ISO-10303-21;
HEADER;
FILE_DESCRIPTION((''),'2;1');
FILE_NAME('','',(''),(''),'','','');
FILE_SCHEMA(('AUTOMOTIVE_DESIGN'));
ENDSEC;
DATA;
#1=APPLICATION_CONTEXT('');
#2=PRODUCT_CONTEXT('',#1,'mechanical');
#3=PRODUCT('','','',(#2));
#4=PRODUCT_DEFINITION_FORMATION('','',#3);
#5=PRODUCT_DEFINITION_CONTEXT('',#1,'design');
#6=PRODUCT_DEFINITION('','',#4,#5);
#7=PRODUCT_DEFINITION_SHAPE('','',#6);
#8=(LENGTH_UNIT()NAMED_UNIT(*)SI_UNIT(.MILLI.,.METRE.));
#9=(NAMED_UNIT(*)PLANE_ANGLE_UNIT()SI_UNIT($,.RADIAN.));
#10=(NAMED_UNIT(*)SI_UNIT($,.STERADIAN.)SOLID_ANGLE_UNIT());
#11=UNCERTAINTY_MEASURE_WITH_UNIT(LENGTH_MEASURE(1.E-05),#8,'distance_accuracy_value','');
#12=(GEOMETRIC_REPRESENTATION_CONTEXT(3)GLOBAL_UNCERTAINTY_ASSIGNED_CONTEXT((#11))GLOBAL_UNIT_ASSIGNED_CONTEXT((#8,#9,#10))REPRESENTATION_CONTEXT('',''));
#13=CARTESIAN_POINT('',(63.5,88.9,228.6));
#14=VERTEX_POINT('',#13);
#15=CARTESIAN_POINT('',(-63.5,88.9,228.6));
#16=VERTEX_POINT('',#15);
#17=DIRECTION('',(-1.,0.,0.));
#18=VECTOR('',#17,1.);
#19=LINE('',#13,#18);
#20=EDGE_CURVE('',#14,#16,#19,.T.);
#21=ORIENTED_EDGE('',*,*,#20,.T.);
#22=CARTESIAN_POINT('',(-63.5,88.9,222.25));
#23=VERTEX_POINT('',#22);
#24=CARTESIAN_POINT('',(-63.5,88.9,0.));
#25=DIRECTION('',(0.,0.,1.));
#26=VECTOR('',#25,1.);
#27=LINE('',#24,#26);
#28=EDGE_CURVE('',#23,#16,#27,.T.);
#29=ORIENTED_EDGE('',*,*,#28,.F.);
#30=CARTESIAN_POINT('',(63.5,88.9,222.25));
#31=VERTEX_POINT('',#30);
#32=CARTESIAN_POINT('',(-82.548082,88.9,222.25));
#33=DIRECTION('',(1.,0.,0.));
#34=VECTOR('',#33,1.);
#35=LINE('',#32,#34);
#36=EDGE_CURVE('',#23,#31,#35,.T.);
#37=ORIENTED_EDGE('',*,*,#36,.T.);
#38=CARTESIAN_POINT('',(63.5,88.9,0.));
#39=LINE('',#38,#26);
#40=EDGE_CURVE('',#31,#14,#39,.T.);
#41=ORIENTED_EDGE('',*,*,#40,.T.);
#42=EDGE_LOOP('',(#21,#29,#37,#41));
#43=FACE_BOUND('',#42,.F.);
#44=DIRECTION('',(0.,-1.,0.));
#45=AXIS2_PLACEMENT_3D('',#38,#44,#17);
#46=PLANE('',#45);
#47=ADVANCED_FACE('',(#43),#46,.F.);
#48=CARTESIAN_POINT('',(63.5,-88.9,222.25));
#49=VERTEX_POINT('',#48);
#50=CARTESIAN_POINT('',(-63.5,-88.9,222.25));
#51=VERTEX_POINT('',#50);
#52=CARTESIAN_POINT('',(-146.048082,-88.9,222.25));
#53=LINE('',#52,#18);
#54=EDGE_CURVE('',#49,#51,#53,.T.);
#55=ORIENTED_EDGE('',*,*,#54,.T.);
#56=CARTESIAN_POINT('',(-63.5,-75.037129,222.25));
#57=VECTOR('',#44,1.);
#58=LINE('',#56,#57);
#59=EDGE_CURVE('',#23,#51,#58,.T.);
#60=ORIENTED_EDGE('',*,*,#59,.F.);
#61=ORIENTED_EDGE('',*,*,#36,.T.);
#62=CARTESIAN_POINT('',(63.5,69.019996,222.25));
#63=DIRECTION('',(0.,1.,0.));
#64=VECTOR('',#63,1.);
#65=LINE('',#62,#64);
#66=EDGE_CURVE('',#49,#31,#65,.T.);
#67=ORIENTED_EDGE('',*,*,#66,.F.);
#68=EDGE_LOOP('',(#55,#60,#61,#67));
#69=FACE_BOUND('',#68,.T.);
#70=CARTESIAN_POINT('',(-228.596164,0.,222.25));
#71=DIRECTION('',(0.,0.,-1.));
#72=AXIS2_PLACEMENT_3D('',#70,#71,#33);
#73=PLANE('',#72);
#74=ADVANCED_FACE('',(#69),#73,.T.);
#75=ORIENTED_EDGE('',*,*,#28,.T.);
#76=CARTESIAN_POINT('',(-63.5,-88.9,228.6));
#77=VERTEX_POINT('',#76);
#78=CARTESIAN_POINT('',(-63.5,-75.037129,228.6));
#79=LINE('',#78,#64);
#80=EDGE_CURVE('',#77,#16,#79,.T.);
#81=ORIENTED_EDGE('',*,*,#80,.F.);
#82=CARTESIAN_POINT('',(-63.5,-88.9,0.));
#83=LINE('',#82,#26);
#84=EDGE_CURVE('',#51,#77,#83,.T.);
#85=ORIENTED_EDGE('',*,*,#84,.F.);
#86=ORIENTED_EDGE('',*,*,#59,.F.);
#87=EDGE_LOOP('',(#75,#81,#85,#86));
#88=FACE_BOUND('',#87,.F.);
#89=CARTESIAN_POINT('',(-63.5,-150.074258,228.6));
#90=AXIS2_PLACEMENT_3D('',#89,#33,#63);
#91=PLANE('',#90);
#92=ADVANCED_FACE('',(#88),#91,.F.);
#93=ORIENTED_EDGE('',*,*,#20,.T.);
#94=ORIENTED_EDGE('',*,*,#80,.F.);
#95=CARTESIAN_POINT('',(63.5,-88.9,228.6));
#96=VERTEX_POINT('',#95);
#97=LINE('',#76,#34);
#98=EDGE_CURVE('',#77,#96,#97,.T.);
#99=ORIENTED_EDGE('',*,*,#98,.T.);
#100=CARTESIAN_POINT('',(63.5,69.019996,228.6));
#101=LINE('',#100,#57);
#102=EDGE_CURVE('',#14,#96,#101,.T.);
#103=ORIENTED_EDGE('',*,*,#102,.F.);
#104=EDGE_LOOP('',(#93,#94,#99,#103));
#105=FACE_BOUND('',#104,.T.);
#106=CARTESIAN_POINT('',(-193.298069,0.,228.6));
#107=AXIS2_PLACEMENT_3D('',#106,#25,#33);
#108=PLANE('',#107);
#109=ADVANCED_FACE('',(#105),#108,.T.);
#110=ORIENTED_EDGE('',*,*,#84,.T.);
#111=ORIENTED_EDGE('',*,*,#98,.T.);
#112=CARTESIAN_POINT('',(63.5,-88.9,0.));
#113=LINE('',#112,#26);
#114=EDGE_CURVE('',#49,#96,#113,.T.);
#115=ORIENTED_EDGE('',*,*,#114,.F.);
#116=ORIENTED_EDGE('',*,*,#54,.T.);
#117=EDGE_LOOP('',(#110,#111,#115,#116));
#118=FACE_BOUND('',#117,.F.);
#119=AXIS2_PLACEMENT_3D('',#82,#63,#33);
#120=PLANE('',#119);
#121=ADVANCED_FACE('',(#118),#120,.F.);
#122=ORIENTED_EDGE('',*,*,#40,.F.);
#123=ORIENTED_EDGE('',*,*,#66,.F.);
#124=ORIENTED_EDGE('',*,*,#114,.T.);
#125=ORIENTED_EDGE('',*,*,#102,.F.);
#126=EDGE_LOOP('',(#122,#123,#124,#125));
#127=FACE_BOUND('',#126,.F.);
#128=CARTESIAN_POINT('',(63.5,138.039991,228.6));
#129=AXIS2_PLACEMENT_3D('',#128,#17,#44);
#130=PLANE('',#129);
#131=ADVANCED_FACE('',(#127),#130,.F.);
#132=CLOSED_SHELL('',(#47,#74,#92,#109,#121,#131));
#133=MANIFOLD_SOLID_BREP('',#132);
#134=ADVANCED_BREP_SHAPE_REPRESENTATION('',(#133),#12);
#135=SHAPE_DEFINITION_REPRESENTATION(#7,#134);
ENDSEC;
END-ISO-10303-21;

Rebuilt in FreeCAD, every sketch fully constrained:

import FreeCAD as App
import Part
import Sketcher
from FreeCAD import Vector
Q = App.Units.Quantity

doc = App.newDocument("Part")
params = doc.addObject("Spreadsheet::Sheet", "Params")
for row, (alias, value) in enumerate([
    ("sketch1_width", "5 in"),
    ("sketch1_length", "1.414 in"),
    ("pad1_length", "9 in"),
    ("sketch2_diameter", "0.5 in"),
    ("sketch2_length", "0.707 in"),
    ("pad2_length", "3 in"),
    ("sketch3_diameter", "0.5 in"),
    ("pad3_length", "7 in"),
    ("sketch4_diameter", "0.5 in"),
    ("pad4_length", "8 in"),
    ("sketch5_height", "4 in"),
    ("sketch5_width", "0.251 in"),
    ("groove_angle", "360 deg"),
    ("sketch6_height", "4 in"),
    ("sketch6_width", "0.251 in"),
    ("groove2_angle", "360 deg"),
    ("sketch7_height", "4 in"),
    ("sketch7_width", "0.251 in"),
    ("groove3_angle", "360 deg"),
    ("sketch8_height", "4 in"),
    ("sketch8_width", "0.251 in"),
    ("groove4_angle", "360 deg"),
    ("sketch9_height", "4 in"),
    ("sketch9_width", "0.252 in"),
    ("groove5_angle", "360 deg"),
    ("sketch10_height", "5 in"),
    ("sketch10_width", "0.252 in"),
    ("groove6_angle", "360 deg"),
    ("sketch11_height", "9.25 in"),
    ("pocket1_length", "20 in"),
    ("pocket2_length", "20 in"),
    ("pocket3_length", "20 in"),
], start=1):
    params.set(f"A{row}", alias)
    params.set(f"B{row}", "=" + value)
    params.setAlias(f"B{row}", alias)

body = doc.addObject("PartDesign::Body", "Body")

# Sketch on XY plane
sketch1 = body.newObject("Sketcher::SketchObject", "Sketch")
sketch1.AttachmentSupport = (doc.getObject("XY_Plane"), [""])
sketch1.MapMode = "FlatFace"
sketch1.addGeometry(Part.LineSegment(Vector(-177, 12, 0), Vector(-190, 25, 0)), False)
sketch1.addGeometry(Part.LineSegment(Vector(-190, 25, 0), Vector(-216, 0, 0)), False)
sketch1.addGeometry(Part.LineSegment(Vector(-216, 0, 0), Vector(-190, -25, 0)), False)
sketch1.addGeometry(Part.LineSegment(Vector(-190, -25, 0), Vector(-177, -12, 0)), False)
sketch1.addGeometry(Part.LineSegment(Vector(-177, -12, 0), Vector(-102, -77, 0)), False)
sketch1.addGeometry(Part.LineSegment(Vector(-102, -77, 0), Vector(-114, -89, 0)), False)
sketch1.addGeometry(Part.LineSegment(Vector(-114, -89, 0), Vector(-89, -114, 0)), False)
sketch1.addGeometry(Part.LineSegment(Vector(-89, -114, 0), Vector(-64, -89, 0)), False)
sketch1.addGeometry(Part.LineSegment(Vector(-64, -89, 0), Vector(64, -89, 0)), False)
sketch1.addGeometry(Part.LineSegment(Vector(64, -89, 0), Vector(89, -114, 0)), False)
sketch1.addGeometry(Part.LineSegment(Vector(89, -114, 0), Vector(114, -89, 0)), False)
sketch1.addGeometry(Part.LineSegment(Vector(114, -89, 0), Vector(102, -77, 0)), False)
sketch1.addGeometry(Part.LineSegment(Vector(102, -77, 0), Vector(177, -12, 0)), False)
sketch1.addGeometry(Part.LineSegment(Vector(177, -12, 0), Vector(190, -25, 0)), False)
sketch1.addGeometry(Part.LineSegment(Vector(190, -25, 0), Vector(216, 0, 0)), False)
sketch1.addGeometry(Part.LineSegment(Vector(216, 0, 0), Vector(190, 25, 0)), False)
sketch1.addGeometry(Part.LineSegment(Vector(190, 25, 0), Vector(177, 12, 0)), False)
sketch1.addGeometry(Part.LineSegment(Vector(177, 12, 0), Vector(102, 77, 0)), False)
sketch1.addGeometry(Part.LineSegment(Vector(102, 77, 0), Vector(114, 89, 0)), False)
sketch1.addGeometry(Part.LineSegment(Vector(114, 89, 0), Vector(89, 114, 0)), False)
sketch1.addGeometry(Part.LineSegment(Vector(89, 114, 0), Vector(64, 89, 0)), False)
sketch1.addGeometry(Part.LineSegment(Vector(64, 89, 0), Vector(-64, 89, 0)), False)
sketch1.addGeometry(Part.LineSegment(Vector(-64, 89, 0), Vector(-89, 114, 0)), False)
sketch1.addGeometry(Part.LineSegment(Vector(-89, 114, 0), Vector(-114, 89, 0)), False)
sketch1.addGeometry(Part.LineSegment(Vector(-114, 89, 0), Vector(-102, 77, 0)), False)
sketch1.addGeometry(Part.LineSegment(Vector(-102, 77, 0), Vector(-177, 12, 0)), False)
sketch1.addConstraint(Sketcher.Constraint("Coincident", 0, 2, 1, 1))
sketch1.addConstraint(Sketcher.Constraint("Coincident", 1, 2, 2, 1))
sketch1.addConstraint(Sketcher.Constraint("Coincident", 2, 2, 3, 1))
sketch1.addConstraint(Sketcher.Constraint("Coincident", 3, 2, 4, 1))
sketch1.addConstraint(Sketcher.Constraint("Coincident", 4, 2, 5, 1))
sketch1.addConstraint(Sketcher.Constraint("Coincident", 5, 2, 6, 1))
sketch1.addConstraint(Sketcher.Constraint("Coincident", 6, 2, 7, 1))
sketch1.addConstraint(Sketcher.Constraint("Coincident", 7, 2, 8, 1))
sketch1.addConstraint(Sketcher.Constraint("Coincident", 8, 2, 9, 1))
sketch1.addConstraint(Sketcher.Constraint("Coincident", 9, 2, 10, 1))
sketch1.addConstraint(Sketcher.Constraint("Coincident", 10, 2, 11, 1))
sketch1.addConstraint(Sketcher.Constraint("Coincident", 11, 2, 12, 1))
sketch1.addConstraint(Sketcher.Constraint("Coincident", 12, 2, 13, 1))
sketch1.addConstraint(Sketcher.Constraint("Coincident", 13, 2, 14, 1))
sketch1.addConstraint(Sketcher.Constraint("Coincident", 14, 2, 15, 1))
sketch1.addConstraint(Sketcher.Constraint("Coincident", 15, 2, 16, 1))
sketch1.addConstraint(Sketcher.Constraint("Coincident", 16, 2, 17, 1))
sketch1.addConstraint(Sketcher.Constraint("Coincident", 17, 2, 18, 1))
sketch1.addConstraint(Sketcher.Constraint("Coincident", 18, 2, 19, 1))
sketch1.addConstraint(Sketcher.Constraint("Coincident", 19, 2, 20, 1))
sketch1.addConstraint(Sketcher.Constraint("Coincident", 20, 2, 21, 1))
sketch1.addConstraint(Sketcher.Constraint("Coincident", 21, 2, 22, 1))
sketch1.addConstraint(Sketcher.Constraint("Coincident", 22, 2, 23, 1))
sketch1.addConstraint(Sketcher.Constraint("Coincident", 23, 2, 24, 1))
sketch1.addConstraint(Sketcher.Constraint("Coincident", 24, 2, 25, 1))
sketch1.addConstraint(Sketcher.Constraint("Coincident", 25, 2, 0, 1))
sketch1.addConstraint(Sketcher.Constraint("Horizontal", 8))
sketch1.addConstraint(Sketcher.Constraint("Horizontal", 21))
sketch1.addConstraint(Sketcher.Constraint("Symmetric", 0, 2, 13, 2, -1, 1))
sketch1.addConstraint(Sketcher.Constraint("Symmetric", 1, 2, 14, 2, -1, 1))
sketch1.addConstraint(Sketcher.Constraint("Symmetric", 2, 2, 15, 2, -1, 1))
sketch1.addConstraint(Sketcher.Constraint("Symmetric", 3, 2, 16, 2, -1, 1))
sketch1.addConstraint(Sketcher.Constraint("Symmetric", 4, 2, 17, 2, -1, 1))
sketch1.addConstraint(Sketcher.Constraint("Symmetric", 5, 2, 18, 2, -1, 1))
sketch1.addConstraint(Sketcher.Constraint("Symmetric", 6, 2, 19, 2, -1, 1))
sketch1.addConstraint(Sketcher.Constraint("Symmetric", 7, 2, 20, 2, -1, 1))
sketch1.addConstraint(Sketcher.Constraint("Symmetric", 9, 2, 22, 2, -1, 1))
sketch1.addConstraint(Sketcher.Constraint("Symmetric", 10, 2, 23, 2, -1, 1))
sketch1.addConstraint(Sketcher.Constraint("Symmetric", 11, 2, 24, 2, -1, 1))
sketch1.addConstraint(Sketcher.Constraint("Symmetric", 12, 2, 25, 2, -1, 1))
sketch1.addConstraint(Sketcher.Constraint("Symmetric", 6, 2, 9, 2, -2))
sketch1.addConstraint(Sketcher.Constraint("Symmetric", 5, 2, 10, 2, -2))
sketch1.addConstraint(Sketcher.Constraint("Symmetric", 4, 2, 11, 2, -2))
sketch1.addConstraint(Sketcher.Constraint("Symmetric", 3, 2, 12, 2, -2))
sketch1.addConstraint(Sketcher.Constraint("Symmetric", 2, 2, 13, 2, -2))
sketch1.addConstraint(Sketcher.Constraint("PointOnObject", 1, 2, -1))
sketch1.addConstraint(Sketcher.Constraint("Perpendicular", 0, 1))
sketch1.addConstraint(Sketcher.Constraint("Perpendicular", 1, 2))
sketch1.addConstraint(Sketcher.Constraint("Parallel", 3, 5))
sketch1.addConstraint(Sketcher.Constraint("Perpendicular", 5, 6))
sketch1.addConstraint(Sketcher.Constraint("Perpendicular", 6, 7))
sketch1.addConstraint(Sketcher.Constraint("Perpendicular", 7, 9))
sketch1.addConstraint(Sketcher.Constraint("Perpendicular", 20, 22))
sketch1.addConstraint(Sketcher.Constraint("Horizontal", 5, 2, 7, 2))
sketch1.addConstraint(Sketcher.Constraint("DistanceX", 8, 1, 8, 2, Q("5 in")))
sketch1.addConstraint(Sketcher.Constraint("DistanceX", 2, 2, 5, 2, Q("3 in")))
sketch1.addConstraint(Sketcher.Constraint("DistanceX", 5, 2, 6, 2, Q("1 in")))
sketch1.addConstraint(Sketcher.Constraint("DistanceY", 5, 2, -1, 1, Q("3.5 in")))
sketch1.addConstraint(Sketcher.Constraint("Distance", 1, Q("1.414 in")))
sketch1.addConstraint(Sketcher.Constraint("Distance", 4, Q("99.00481 mm")))
sketch1.addConstraint(Sketcher.Constraint("DistanceX", 3, 2, -1, 1, Q("176.955379 mm")))
sketch1.setExpression("Constraints[54]", "Params.sketch1_width")
sketch1.setExpression("Constraints[58]", "Params.sketch1_length")
pad1 = body.newObject("PartDesign::Pad", "Pad")
pad1.Profile = sketch1
pad1.setExpression("Length", "Params.pad1_length")

# Sketch on XY plane
sketch2 = body.newObject("Sketcher::SketchObject", "Sketch001")
sketch2.AttachmentSupport = (doc.getObject("XY_Plane"), [""])
sketch2.MapMode = "FlatFace"
sketch2.AttachmentOffset = App.Placement(Vector(0, 0, 9 * 25.4), App.Rotation())
sketch2.addGeometry(Part.LineSegment(Vector(-178, 0, 0), Vector(-190, 13, 0)), False)
sketch2.addGeometry(Part.LineSegment(Vector(-190, 13, 0), Vector(-203, 0, 0)), False)
sketch2.addGeometry(Part.LineSegment(Vector(-203, 0, 0), Vector(-190, -13, 0)), False)
sketch2.addGeometry(Part.LineSegment(Vector(-190, -13, 0), Vector(-178, 0, 0)), False)
sketch2.addGeometry(Part.Circle(Vector(-190, 0, 0), Vector(0, 0, 1), 6), False)
sketch2.addGeometry(Part.LineSegment(Vector(-89, 102, 0), Vector(-102, 89, 0)), False)
sketch2.addGeometry(Part.LineSegment(Vector(-102, 89, 0), Vector(-89, 76, 0)), False)
sketch2.addGeometry(Part.LineSegment(Vector(-89, 76, 0), Vector(-76, 89, 0)), False)
sketch2.addGeometry(Part.LineSegment(Vector(-76, 89, 0), Vector(-89, 102, 0)), False)
sketch2.addGeometry(Part.Circle(Vector(-89, 89, 0), Vector(0, 0, 1), 6), False)
sketch2.addGeometry(Part.LineSegment(Vector(190, -13, 0), Vector(203, 0, 0)), False)
sketch2.addGeometry(Part.LineSegment(Vector(203, 0, 0), Vector(190, 13, 0)), False)
sketch2.addGeometry(Part.LineSegment(Vector(190, 13, 0), Vector(178, 0, 0)), False)
sketch2.addGeometry(Part.LineSegment(Vector(178, 0, 0), Vector(190, -13, 0)), False)
sketch2.addGeometry(Part.Circle(Vector(190, 0, 0), Vector(0, 0, 1), 6), False)
sketch2.addGeometry(Part.LineSegment(Vector(89, -102, 0), Vector(102, -89, 0)), False)
sketch2.addGeometry(Part.LineSegment(Vector(102, -89, 0), Vector(89, -76, 0)), False)
sketch2.addGeometry(Part.LineSegment(Vector(89, -76, 0), Vector(76, -89, 0)), False)
sketch2.addGeometry(Part.LineSegment(Vector(76, -89, 0), Vector(89, -102, 0)), False)
sketch2.addGeometry(Part.Circle(Vector(89, -89, 0), Vector(0, 0, 1), 6), False)
sketch2.addGeometry(Part.LineSegment(Vector(-102, -89, 0), Vector(-89, -102, 0)), False)
sketch2.addGeometry(Part.LineSegment(Vector(-89, -102, 0), Vector(-76, -89, 0)), False)
sketch2.addGeometry(Part.LineSegment(Vector(-76, -89, 0), Vector(-89, -76, 0)), False)
sketch2.addGeometry(Part.LineSegment(Vector(-89, -76, 0), Vector(-102, -89, 0)), False)
sketch2.addGeometry(Part.Circle(Vector(-89, -89, 0), Vector(0, 0, 1), 6), False)
sketch2.addGeometry(Part.LineSegment(Vector(102, 89, 0), Vector(89, 102, 0)), False)
sketch2.addGeometry(Part.LineSegment(Vector(89, 102, 0), Vector(76, 89, 0)), False)
sketch2.addGeometry(Part.LineSegment(Vector(76, 89, 0), Vector(89, 76, 0)), False)
sketch2.addGeometry(Part.LineSegment(Vector(89, 76, 0), Vector(102, 89, 0)), False)
sketch2.addGeometry(Part.Circle(Vector(89, 89, 0), Vector(0, 0, 1), 6), False)
sketch2.addConstraint(Sketcher.Constraint("Coincident", 0, 2, 1, 1))
sketch2.addConstraint(Sketcher.Constraint("Coincident", 1, 2, 2, 1))
sketch2.addConstraint(Sketcher.Constraint("Coincident", 2, 2, 3, 1))
sketch2.addConstraint(Sketcher.Constraint("Coincident", 3, 2, 0, 1))
sketch2.addConstraint(Sketcher.Constraint("Coincident", 5, 2, 6, 1))
sketch2.addConstraint(Sketcher.Constraint("Coincident", 6, 2, 7, 1))
sketch2.addConstraint(Sketcher.Constraint("Coincident", 7, 2, 8, 1))
sketch2.addConstraint(Sketcher.Constraint("Coincident", 8, 2, 5, 1))
sketch2.addConstraint(Sketcher.Constraint("Coincident", 10, 2, 11, 1))
sketch2.addConstraint(Sketcher.Constraint("Coincident", 11, 2, 12, 1))
sketch2.addConstraint(Sketcher.Constraint("Coincident", 12, 2, 13, 1))
sketch2.addConstraint(Sketcher.Constraint("Coincident", 13, 2, 10, 1))
sketch2.addConstraint(Sketcher.Constraint("Coincident", 15, 2, 16, 1))
sketch2.addConstraint(Sketcher.Constraint("Coincident", 16, 2, 17, 1))
sketch2.addConstraint(Sketcher.Constraint("Coincident", 17, 2, 18, 1))
sketch2.addConstraint(Sketcher.Constraint("Coincident", 18, 2, 15, 1))
sketch2.addConstraint(Sketcher.Constraint("Coincident", 20, 2, 21, 1))
sketch2.addConstraint(Sketcher.Constraint("Coincident", 21, 2, 22, 1))
sketch2.addConstraint(Sketcher.Constraint("Coincident", 22, 2, 23, 1))
sketch2.addConstraint(Sketcher.Constraint("Coincident", 23, 2, 20, 1))
sketch2.addConstraint(Sketcher.Constraint("Coincident", 25, 2, 26, 1))
sketch2.addConstraint(Sketcher.Constraint("Coincident", 26, 2, 27, 1))
sketch2.addConstraint(Sketcher.Constraint("Coincident", 27, 2, 28, 1))
sketch2.addConstraint(Sketcher.Constraint("Coincident", 28, 2, 25, 1))
sketch2.addConstraint(Sketcher.Constraint("Equal", 4, 9))
sketch2.addConstraint(Sketcher.Constraint("Equal", 9, 14))
sketch2.addConstraint(Sketcher.Constraint("Equal", 14, 19))
sketch2.addConstraint(Sketcher.Constraint("Equal", 19, 24))
sketch2.addConstraint(Sketcher.Constraint("Equal", 24, 29))
sketch2.addConstraint(Sketcher.Constraint("Symmetric", 4, 3, 14, 3, -1, 1))
sketch2.addConstraint(Sketcher.Constraint("Symmetric", 9, 3, 19, 3, -1, 1))
sketch2.addConstraint(Sketcher.Constraint("Symmetric", 24, 3, 29, 3, -1, 1))
sketch2.addConstraint(Sketcher.Constraint("Symmetric", 1, 2, 10, 2, -1, 1))
sketch2.addConstraint(Sketcher.Constraint("Symmetric", 2, 2, 11, 2, -1, 1))
sketch2.addConstraint(Sketcher.Constraint("Symmetric", 3, 2, 12, 2, -1, 1))
sketch2.addConstraint(Sketcher.Constraint("Symmetric", 0, 2, 13, 2, -1, 1))
sketch2.addConstraint(Sketcher.Constraint("Symmetric", 5, 2, 15, 2, -1, 1))
sketch2.addConstraint(Sketcher.Constraint("Symmetric", 6, 2, 16, 2, -1, 1))
sketch2.addConstraint(Sketcher.Constraint("Symmetric", 7, 2, 17, 2, -1, 1))
sketch2.addConstraint(Sketcher.Constraint("Symmetric", 8, 2, 18, 2, -1, 1))
sketch2.addConstraint(Sketcher.Constraint("Symmetric", 20, 2, 25, 2, -1, 1))
sketch2.addConstraint(Sketcher.Constraint("Symmetric", 21, 2, 26, 2, -1, 1))
sketch2.addConstraint(Sketcher.Constraint("Symmetric", 22, 2, 27, 2, -1, 1))
sketch2.addConstraint(Sketcher.Constraint("Symmetric", 23, 2, 28, 2, -1, 1))
sketch2.addConstraint(Sketcher.Constraint("Symmetric", 19, 3, 24, 3, -2))
sketch2.addConstraint(Sketcher.Constraint("Symmetric", 0, 2, 11, 2, -2))
sketch2.addConstraint(Sketcher.Constraint("Symmetric", 18, 2, 20, 2, -2))
sketch2.addConstraint(Sketcher.Constraint("Symmetric", 17, 2, 21, 2, -2))
sketch2.addConstraint(Sketcher.Constraint("Symmetric", 16, 2, 22, 2, -2))
sketch2.addConstraint(Sketcher.Constraint("Symmetric", 15, 2, 23, 2, -2))
sketch2.addConstraint(Sketcher.Constraint("PointOnObject", 4, 3, -1))
sketch2.addConstraint(Sketcher.Constraint("PointOnObject", 1, 2, -1))
sketch2.addConstraint(Sketcher.Constraint("PointOnObject", 3, 2, -1))
sketch2.addConstraint(Sketcher.Constraint("Perpendicular", 0, 1))
sketch2.addConstraint(Sketcher.Constraint("Perpendicular", 1, 2))
sketch2.addConstraint(Sketcher.Constraint("Parallel", 3, 5))
sketch2.addConstraint(Sketcher.Constraint("Perpendicular", 5, 6))
sketch2.addConstraint(Sketcher.Constraint("Perpendicular", 6, 7))
sketch2.addConstraint(Sketcher.Constraint("Perpendicular", 7, 8))
sketch2.addConstraint(Sketcher.Constraint("Horizontal", 5, 2, 7, 2))
sketch2.addConstraint(Sketcher.Constraint("Vertical", 4, 3, 0, 2))
sketch2.addConstraint(Sketcher.Constraint("Vertical", 24, 3, 6, 2))
sketch2.addConstraint(Sketcher.Constraint("Diameter", 4, Q("0.5 in")))
sketch2.addConstraint(Sketcher.Constraint("DistanceX", 5, 2, -1, 1, Q("4 in")))
sketch2.addConstraint(Sketcher.Constraint("DistanceY", -1, 1, 6, 2, Q("3 in")))
sketch2.addConstraint(Sketcher.Constraint("DistanceX", 7, 2, -1, 1, Q("3 in")))
sketch2.addConstraint(Sketcher.Constraint("DistanceX", 4, 3, 9, 3, Q("4 in")))
sketch2.addConstraint(Sketcher.Constraint("Distance", 0, Q("0.707 in")))
sketch2.addConstraint(Sketcher.Constraint("DistanceY", 19, 3, 9, 3, Q("177.715272 mm")))
sketch2.setExpression("Constraints[62]", "Params.sketch2_diameter")
sketch2.setExpression("Constraints[67]", "Params.sketch2_length")
pad2 = body.newObject("PartDesign::Pad", "Pad001")
pad2.Profile = sketch2
pad2.setExpression("Length", "Params.pad2_length")

# Sketch on XY plane
sketch3 = body.newObject("Sketcher::SketchObject", "Sketch002")
sketch3.AttachmentSupport = (doc.getObject("XY_Plane"), [""])
sketch3.MapMode = "FlatFace"
sketch3.AttachmentOffset = App.Placement(Vector(0, 0, 9 * 25.4), App.Rotation())
sketch3.addGeometry(Part.Circle(Vector(-88.9, 88.858, 0), Vector(0, 0, 1), 6.35), False)
sketch3.addGeometry(Part.Circle(Vector(-88.9, 88.858, 0), Vector(0, 0, 1), 0.032), False)
sketch3.addGeometry(Part.Circle(Vector(190.5, 0, 0), Vector(0, 0, 1), 6.35), False)
sketch3.addGeometry(Part.Circle(Vector(-88.9, -88.858, 0), Vector(0, 0, 1), 6.35), False)
sketch3.addGeometry(Part.Circle(Vector(-88.9, -88.858, 0), Vector(0, 0, 1), 0.032), False)
sketch3.addGeometry(Part.Circle(Vector(88.9, -88.858, 0), Vector(0, 0, 1), 6.35), False)
sketch3.addGeometry(Part.Circle(Vector(88.9, -88.858, 0), Vector(0, 0, 1), 0.032), False)
sketch3.addGeometry(Part.Circle(Vector(88.9, 88.858, 0), Vector(0, 0, 1), 6.35), False)
sketch3.addGeometry(Part.Circle(Vector(88.9, 88.858, 0), Vector(0, 0, 1), 0.032), False)
sketch3.addConstraint(Sketcher.Constraint("Coincident", 1, 3, 0, 3))
sketch3.addConstraint(Sketcher.Constraint("Coincident", 4, 3, 3, 3))
sketch3.addConstraint(Sketcher.Constraint("Coincident", 6, 3, 5, 3))
sketch3.addConstraint(Sketcher.Constraint("Coincident", 8, 3, 7, 3))
sketch3.addConstraint(Sketcher.Constraint("Equal", 0, 2))
sketch3.addConstraint(Sketcher.Constraint("Equal", 2, 3))
sketch3.addConstraint(Sketcher.Constraint("Equal", 1, 4))
sketch3.addConstraint(Sketcher.Constraint("Equal", 3, 5))
sketch3.addConstraint(Sketcher.Constraint("Equal", 4, 6))
sketch3.addConstraint(Sketcher.Constraint("Equal", 5, 7))
sketch3.addConstraint(Sketcher.Constraint("Equal", 6, 8))
sketch3.addConstraint(Sketcher.Constraint("Symmetric", 0, 3, 5, 3, -1, 1))
sketch3.addConstraint(Sketcher.Constraint("Symmetric", 3, 3, 7, 3, -1, 1))
sketch3.addConstraint(Sketcher.Constraint("Symmetric", 3, 3, 5, 3, -2))
sketch3.addConstraint(Sketcher.Constraint("PointOnObject", 2, 3, -1))
sketch3.addConstraint(Sketcher.Constraint("Diameter", 0, Q("0.5 in")))
sketch3.addConstraint(Sketcher.Constraint("DistanceX", 0, 3, 2, 3, Q("11 in")))
sketch3.addConstraint(Sketcher.Constraint("DistanceX", 5, 3, 2, 3, Q("4 in")))
sketch3.addConstraint(Sketcher.Constraint("Diameter", 1, Q("0.063765 mm")))
sketch3.addConstraint(Sketcher.Constraint("DistanceY", 3, 3, 0, 3, Q("177.715272 mm")))
sketch3.setExpression("Constraints[15]", "Params.sketch3_diameter")
pad3 = body.newObject("PartDesign::Pad", "Pad002")
pad3.Profile = sketch3
pad3.setExpression("Length", "Params.pad3_length")

# Sketch on XY plane
sketch4 = body.newObject("Sketcher::SketchObject", "Sketch003")
sketch4.AttachmentSupport = (doc.getObject("XY_Plane"), [""])
sketch4.MapMode = "FlatFace"
sketch4.AttachmentOffset = App.Placement(Vector(0, 0, 9 * 25.4), App.Rotation())
sketch4.addGeometry(Part.Circle(Vector(-190, 0, 0), Vector(0, 0, 1), 6), False)
sketch4.addConstraint(Sketcher.Constraint("PointOnObject", 0, 3, -1))
sketch4.addConstraint(Sketcher.Constraint("Diameter", 0, Q("0.5 in")))
sketch4.addConstraint(Sketcher.Constraint("DistanceX", 0, 3, -1, 1, Q("7.5 in")))
sketch4.setExpression("Constraints[1]", "Params.sketch4_diameter")
pad4 = body.newObject("PartDesign::Pad", "Pad003")
pad4.Profile = sketch4
pad4.setExpression("Length", "Params.pad4_length")

# Sketch on XZ plane
sketch5 = body.newObject("Sketcher::SketchObject", "Sketch004")
sketch5.AttachmentSupport = (doc.getObject("XZ_Plane"), [""])
sketch5.MapMode = "FlatFace"
sketch5.AttachmentOffset = App.Placement(Vector(0, 0, 3.5 * 25.4), App.Rotation())
sketch5.addGeometry(Part.LineSegment(Vector(-89, 406, 0), Vector(-82, 305, 0)), False)
sketch5.addGeometry(Part.LineSegment(Vector(-82, 305, 0), Vector(-82, 406, 0)), False)
sketch5.addGeometry(Part.LineSegment(Vector(-82, 406, 0), Vector(-89, 406, 0)), False)
sketch5.addGeometry(Part.LineSegment(Vector(-89, 305, 0), Vector(-89, 406, 0)), True)  # axis
sketch5.addConstraint(Sketcher.Constraint("Coincident", 0, 2, 1, 1))
sketch5.addConstraint(Sketcher.Constraint("Coincident", 1, 2, 2, 1))
sketch5.addConstraint(Sketcher.Constraint("Coincident", 2, 2, 0, 1))
sketch5.addConstraint(Sketcher.Constraint("Vertical", 1))
sketch5.addConstraint(Sketcher.Constraint("Horizontal", 2))
sketch5.addConstraint(Sketcher.Constraint("Vertical", 3))
sketch5.addConstraint(Sketcher.Constraint("Horizontal", 0, 2, 3, 1))
sketch5.addConstraint(Sketcher.Constraint("Horizontal", 2, 2, 3, 2))
sketch5.addConstraint(Sketcher.Constraint("DistanceY", 1, 1, 1, 2, Q("4 in")))
sketch5.addConstraint(Sketcher.Constraint("DistanceY", -1, 1, 0, 2, Q("12 in")))
sketch5.addConstraint(Sketcher.Constraint("DistanceX", 3, 1, -1, 1, Q("3.5 in")))
sketch5.addConstraint(Sketcher.Constraint("DistanceX", 2, 2, 2, 1, Q("0.251 in")))
sketch5.addConstraint(Sketcher.Constraint("DistanceX", 0, 2, -1, 1, Q("3.248 in")))
sketch5.setExpression("Constraints[8]", "Params.sketch5_height")
sketch5.setExpression("Constraints[11]", "Params.sketch5_width")
groove = body.newObject("PartDesign::Groove", "Groove")
groove.Profile = sketch5
groove.ReferenceAxis = (sketch5, ["Axis0"])
groove.setExpression("Angle", "Params.groove_angle")

# Sketch on XZ plane
sketch6 = body.newObject("Sketcher::SketchObject", "Sketch005")
sketch6.AttachmentSupport = (doc.getObject("XZ_Plane"), [""])
sketch6.MapMode = "FlatFace"
sketch6.AttachmentOffset = App.Placement(Vector(0, 0, 3.5 * 25.4), App.Rotation())
sketch6.addGeometry(Part.LineSegment(Vector(89, 406, 0), Vector(95, 305, 0)), False)
sketch6.addGeometry(Part.LineSegment(Vector(95, 305, 0), Vector(95, 406, 0)), False)
sketch6.addGeometry(Part.LineSegment(Vector(95, 406, 0), Vector(89, 406, 0)), False)
sketch6.addGeometry(Part.LineSegment(Vector(89, 305, 0), Vector(89, 406, 0)), True)  # axis
sketch6.addConstraint(Sketcher.Constraint("Coincident", 0, 2, 1, 1))
sketch6.addConstraint(Sketcher.Constraint("Coincident", 1, 2, 2, 1))
sketch6.addConstraint(Sketcher.Constraint("Coincident", 2, 2, 0, 1))
sketch6.addConstraint(Sketcher.Constraint("Vertical", 1))
sketch6.addConstraint(Sketcher.Constraint("Horizontal", 2))
sketch6.addConstraint(Sketcher.Constraint("Vertical", 3))
sketch6.addConstraint(Sketcher.Constraint("Horizontal", 0, 2, 3, 1))
sketch6.addConstraint(Sketcher.Constraint("Horizontal", 2, 2, 3, 2))
sketch6.addConstraint(Sketcher.Constraint("DistanceY", 1, 1, 1, 2, Q("4 in")))
sketch6.addConstraint(Sketcher.Constraint("DistanceY", -1, 1, 0, 2, Q("12 in")))
sketch6.addConstraint(Sketcher.Constraint("DistanceX", 2, 2, 2, 1, Q("0.251 in")))
sketch6.addConstraint(Sketcher.Constraint("DistanceX", 3, 1, 0, 2, Q("0.252 in")))
sketch6.addConstraint(Sketcher.Constraint("DistanceX", -1, 1, 0, 2, Q("95.301209 mm")))
sketch6.setExpression("Constraints[8]", "Params.sketch6_height")
sketch6.setExpression("Constraints[10]", "Params.sketch6_width")
groove2 = body.newObject("PartDesign::Groove", "Groove001")
groove2.Profile = sketch6
groove2.ReferenceAxis = (sketch6, ["Axis0"])
groove2.setExpression("Angle", "Params.groove2_angle")

# Sketch on XZ plane
sketch7 = body.newObject("Sketcher::SketchObject", "Sketch006")
sketch7.AttachmentSupport = (doc.getObject("XZ_Plane"), [""])
sketch7.MapMode = "FlatFace"
sketch7.AttachmentOffset = App.Placement(Vector(0, 0, -3.5 * 25.4), App.Rotation())
sketch7.addGeometry(Part.LineSegment(Vector(-89, 406, 0), Vector(-95, 305, 0)), False)
sketch7.addGeometry(Part.LineSegment(Vector(-95, 305, 0), Vector(-95, 406, 0)), False)
sketch7.addGeometry(Part.LineSegment(Vector(-95, 406, 0), Vector(-89, 406, 0)), False)
sketch7.addGeometry(Part.LineSegment(Vector(-89, 305, 0), Vector(-89, 406, 0)), True)  # axis
sketch7.addConstraint(Sketcher.Constraint("Coincident", 0, 2, 1, 1))
sketch7.addConstraint(Sketcher.Constraint("Coincident", 1, 2, 2, 1))
sketch7.addConstraint(Sketcher.Constraint("Coincident", 2, 2, 0, 1))
sketch7.addConstraint(Sketcher.Constraint("Vertical", 1))
sketch7.addConstraint(Sketcher.Constraint("Horizontal", 2))
sketch7.addConstraint(Sketcher.Constraint("Vertical", 3))
sketch7.addConstraint(Sketcher.Constraint("Horizontal", 0, 2, 3, 1))
sketch7.addConstraint(Sketcher.Constraint("Horizontal", 2, 2, 3, 2))
sketch7.addConstraint(Sketcher.Constraint("DistanceY", 1, 1, 1, 2, Q("4 in")))
sketch7.addConstraint(Sketcher.Constraint("DistanceY", -1, 1, 0, 2, Q("12 in")))
sketch7.addConstraint(Sketcher.Constraint("DistanceX", 2, 1, 2, 2, Q("0.251 in")))
sketch7.addConstraint(Sketcher.Constraint("DistanceX", 0, 2, 3, 1, Q("0.252 in")))
sketch7.addConstraint(Sketcher.Constraint("DistanceX", 0, 2, -1, 1, Q("95.30062 mm")))
sketch7.setExpression("Constraints[8]", "Params.sketch7_height")
sketch7.setExpression("Constraints[10]", "Params.sketch7_width")
groove3 = body.newObject("PartDesign::Groove", "Groove002")
groove3.Profile = sketch7
groove3.ReferenceAxis = (sketch7, ["Axis0"])
groove3.setExpression("Angle", "Params.groove3_angle")

# Sketch on XZ plane
sketch8 = body.newObject("Sketcher::SketchObject", "Sketch007")
sketch8.AttachmentSupport = (doc.getObject("XZ_Plane"), [""])
sketch8.MapMode = "FlatFace"
sketch8.AttachmentOffset = App.Placement(Vector(0, 0, -3.5 * 25.4), App.Rotation())
sketch8.addGeometry(Part.LineSegment(Vector(89, 406, 0), Vector(82, 305, 0)), False)
sketch8.addGeometry(Part.LineSegment(Vector(82, 305, 0), Vector(82, 406, 0)), False)
sketch8.addGeometry(Part.LineSegment(Vector(82, 406, 0), Vector(89, 406, 0)), False)
sketch8.addGeometry(Part.LineSegment(Vector(89, 305, 0), Vector(89, 406, 0)), True)  # axis
sketch8.addConstraint(Sketcher.Constraint("Coincident", 0, 2, 1, 1))
sketch8.addConstraint(Sketcher.Constraint("Coincident", 1, 2, 2, 1))
sketch8.addConstraint(Sketcher.Constraint("Coincident", 2, 2, 0, 1))
sketch8.addConstraint(Sketcher.Constraint("Vertical", 1))
sketch8.addConstraint(Sketcher.Constraint("Horizontal", 2))
sketch8.addConstraint(Sketcher.Constraint("Vertical", 3))
sketch8.addConstraint(Sketcher.Constraint("Horizontal", 0, 2, 3, 1))
sketch8.addConstraint(Sketcher.Constraint("Horizontal", 2, 2, 3, 2))
sketch8.addConstraint(Sketcher.Constraint("DistanceY", 1, 1, 1, 2, Q("4 in")))
sketch8.addConstraint(Sketcher.Constraint("DistanceY", -1, 1, 0, 2, Q("12 in")))
sketch8.addConstraint(Sketcher.Constraint("DistanceX", 2, 1, 2, 2, Q("0.251 in")))
sketch8.addConstraint(Sketcher.Constraint("DistanceX", 0, 2, 3, 1, Q("0.252 in")))
sketch8.addConstraint(Sketcher.Constraint("DistanceX", -1, 1, 0, 2, Q("82.498255 mm")))
sketch8.setExpression("Constraints[8]", "Params.sketch8_height")
sketch8.setExpression("Constraints[10]", "Params.sketch8_width")
groove4 = body.newObject("PartDesign::Groove", "Groove003")
groove4.Profile = sketch8
groove4.ReferenceAxis = (sketch8, ["Axis0"])
groove4.setExpression("Angle", "Params.groove4_angle")

# Sketch on an angled plane
sketch9 = body.newObject("Sketcher::SketchObject", "Sketch008")
sketch9.Placement = App.Placement(Vector(82.606195, 94.40708, 0), App.Rotation(Vector(-0.752576695, 0.658504608, 0), Vector(0, 0, 1.000000001), Vector(0.658504608, 0.752576695, 0), "ZXY"))
sketch9.addGeometry(Part.LineSegment(Vector(-143, 406, 0), Vector(-137, 305, 0)), False)
sketch9.addGeometry(Part.LineSegment(Vector(-137, 305, 0), Vector(-137, 406, 0)), False)
sketch9.addGeometry(Part.LineSegment(Vector(-137, 406, 0), Vector(-143, 406, 0)), False)
sketch9.addGeometry(Part.LineSegment(Vector(-143, 305, 0), Vector(-143, 406, 0)), True)  # axis
sketch9.addConstraint(Sketcher.Constraint("Coincident", 0, 2, 1, 1))
sketch9.addConstraint(Sketcher.Constraint("Coincident", 1, 2, 2, 1))
sketch9.addConstraint(Sketcher.Constraint("Coincident", 2, 2, 0, 1))
sketch9.addConstraint(Sketcher.Constraint("Vertical", 1))
sketch9.addConstraint(Sketcher.Constraint("Horizontal", 2))
sketch9.addConstraint(Sketcher.Constraint("Vertical", 3))
sketch9.addConstraint(Sketcher.Constraint("Horizontal", 0, 2, 3, 1))
sketch9.addConstraint(Sketcher.Constraint("Horizontal", 2, 2, 3, 2))
sketch9.addConstraint(Sketcher.Constraint("DistanceY", 1, 1, 1, 2, Q("4 in")))
sketch9.addConstraint(Sketcher.Constraint("DistanceY", -1, 1, 0, 2, Q("12 in")))
sketch9.addConstraint(Sketcher.Constraint("DistanceX", 2, 2, 2, 1, Q("0.252 in")))
sketch9.addConstraint(Sketcher.Constraint("DistanceX", 3, 1, 0, 2, Q("0.253 in")))
sketch9.addConstraint(Sketcher.Constraint("DistanceX", 0, 2, -1, 1, Q("136.997483 mm")))
sketch9.setExpression("Constraints[8]", "Params.sketch9_height")
sketch9.setExpression("Constraints[10]", "Params.sketch9_width")
groove5 = body.newObject("PartDesign::Groove", "Groove004")
groove5.Profile = sketch9
groove5.ReferenceAxis = (sketch9, ["Axis0"])
groove5.setExpression("Angle", "Params.groove5_angle")

# Sketch on an angled plane
sketch10 = body.newObject("Sketcher::SketchObject", "Sketch009")
sketch10.Placement = App.Placement(Vector(-82.606195, -94.40708, 0), App.Rotation(Vector(0.752576695, -0.658504608, 0), Vector(0, 0, 1.000000001), Vector(-0.658504608, -0.752576695, 0), "ZXY"))
sketch10.addGeometry(Part.LineSegment(Vector(-143, 432, 0), Vector(-137, 305, 0)), False)
sketch10.addGeometry(Part.LineSegment(Vector(-137, 305, 0), Vector(-137, 432, 0)), False)
sketch10.addGeometry(Part.LineSegment(Vector(-137, 432, 0), Vector(-143, 432, 0)), False)
sketch10.addGeometry(Part.LineSegment(Vector(-143, 305, 0), Vector(-143, 432, 0)), True)  # axis
sketch10.addConstraint(Sketcher.Constraint("Coincident", 0, 2, 1, 1))
sketch10.addConstraint(Sketcher.Constraint("Coincident", 1, 2, 2, 1))
sketch10.addConstraint(Sketcher.Constraint("Coincident", 2, 2, 0, 1))
sketch10.addConstraint(Sketcher.Constraint("Vertical", 1))
sketch10.addConstraint(Sketcher.Constraint("Horizontal", 2))
sketch10.addConstraint(Sketcher.Constraint("Vertical", 3))
sketch10.addConstraint(Sketcher.Constraint("Horizontal", 0, 2, 3, 1))
sketch10.addConstraint(Sketcher.Constraint("Horizontal", 2, 2, 3, 2))
sketch10.addConstraint(Sketcher.Constraint("DistanceY", 1, 1, 1, 2, Q("5 in")))
sketch10.addConstraint(Sketcher.Constraint("DistanceY", -1, 1, 0, 2, Q("12 in")))
sketch10.addConstraint(Sketcher.Constraint("DistanceX", 2, 2, 2, 1, Q("0.252 in")))
sketch10.addConstraint(Sketcher.Constraint("DistanceX", 3, 1, 0, 2, Q("0.253 in")))
sketch10.addConstraint(Sketcher.Constraint("DistanceX", 0, 2, -1, 1, Q("136.995034 mm")))
sketch10.setExpression("Constraints[8]", "Params.sketch10_height")
sketch10.setExpression("Constraints[10]", "Params.sketch10_width")
groove6 = body.newObject("PartDesign::Groove", "Groove005")
groove6.Profile = sketch10
groove6.ReferenceAxis = (sketch10, ["Axis0"])
groove6.setExpression("Angle", "Params.groove6_angle")

# Sketch on XZ plane
sketch11 = body.newObject("Sketcher::SketchObject", "Sketch010")
sketch11.AttachmentSupport = (doc.getObject("XZ_Plane"), [""])
sketch11.MapMode = "FlatFace"
sketch11.addGeometry(Part.LineSegment(Vector(-229, 222, 0), Vector(-229, -13, 0)), False)
sketch11.addGeometry(Part.LineSegment(Vector(-229, -13, 0), Vector(229, -13, 0)), False)
sketch11.addGeometry(Part.LineSegment(Vector(229, -13, 0), Vector(229, 222, 0)), False)
sketch11.addGeometry(Part.LineSegment(Vector(229, 222, 0), Vector(-229, 222, 0)), False)
sketch11.addConstraint(Sketcher.Constraint("Coincident", 0, 2, 1, 1))
sketch11.addConstraint(Sketcher.Constraint("Coincident", 1, 2, 2, 1))
sketch11.addConstraint(Sketcher.Constraint("Coincident", 2, 2, 3, 1))
sketch11.addConstraint(Sketcher.Constraint("Coincident", 3, 2, 0, 1))
sketch11.addConstraint(Sketcher.Constraint("Vertical", 0))
sketch11.addConstraint(Sketcher.Constraint("Horizontal", 1))
sketch11.addConstraint(Sketcher.Constraint("Vertical", 2))
sketch11.addConstraint(Sketcher.Constraint("Horizontal", 3))
sketch11.addConstraint(Sketcher.Constraint("DistanceY", 0, 2, 0, 1, Q("9.25 in")))
sketch11.addConstraint(Sketcher.Constraint("DistanceY", 0, 2, -1, 1, Q("0.5 in")))
sketch11.addConstraint(Sketcher.Constraint("DistanceX", 1, 1, 1, 2, Q("457.192329 mm")))
sketch11.addConstraint(Sketcher.Constraint("DistanceX", 0, 2, -1, 1, Q("228.596164 mm")))
sketch11.setExpression("Constraints[8]", "Params.sketch11_height")
pocket1 = body.newObject("PartDesign::Pocket", "Pocket")
pocket1.Profile = sketch11
pocket1.setExpression("Length", "Params.pocket1_length")
pocket1.Midplane = True

# Sketch on XY plane
sketch12 = body.newObject("Sketcher::SketchObject", "Sketch011")
sketch12.AttachmentSupport = (doc.getObject("XY_Plane"), [""])
sketch12.MapMode = "FlatFace"
sketch12.AttachmentOffset = App.Placement(Vector(0, 0, 9 * 25.4), App.Rotation())
sketch12.addGeometry(Part.LineSegment(Vector(-64, 130, 0), Vector(-229, 130, 0)), False)
sketch12.addGeometry(Part.LineSegment(Vector(-229, 130, 0), Vector(-229, -150, 0)), False)
sketch12.addGeometry(Part.LineSegment(Vector(-229, -150, 0), Vector(-64, -150, 0)), False)
sketch12.addGeometry(Part.LineSegment(Vector(-64, -150, 0), Vector(-64, 130, 0)), False)
sketch12.addConstraint(Sketcher.Constraint("Coincident", 0, 2, 1, 1))
sketch12.addConstraint(Sketcher.Constraint("Coincident", 1, 2, 2, 1))
sketch12.addConstraint(Sketcher.Constraint("Coincident", 2, 2, 3, 1))
sketch12.addConstraint(Sketcher.Constraint("Coincident", 3, 2, 0, 1))
sketch12.addConstraint(Sketcher.Constraint("Horizontal", 0))
sketch12.addConstraint(Sketcher.Constraint("Vertical", 1))
sketch12.addConstraint(Sketcher.Constraint("Horizontal", 2))
sketch12.addConstraint(Sketcher.Constraint("Vertical", 3))
sketch12.addConstraint(Sketcher.Constraint("DistanceX", 2, 2, -1, 1, Q("2.5 in")))
sketch12.addConstraint(Sketcher.Constraint("DistanceX", 0, 2, 0, 1, Q("165.645378 mm")))
sketch12.addConstraint(Sketcher.Constraint("DistanceY", 1, 2, 1, 1, Q("280.235797 mm")))
sketch12.addConstraint(Sketcher.Constraint("DistanceY", -1, 1, 0, 2, Q("130.161539 mm")))
pocket2 = body.newObject("PartDesign::Pocket", "Pocket001")
pocket2.Profile = sketch12
pocket2.setExpression("Length", "Params.pocket2_length")
pocket2.Midplane = True

# Sketch on XY plane
sketch13 = body.newObject("Sketcher::SketchObject", "Sketch012")
sketch13.AttachmentSupport = (doc.getObject("XY_Plane"), [""])
sketch13.MapMode = "FlatFace"
sketch13.AttachmentOffset = App.Placement(Vector(0, 0, 9 * 25.4), App.Rotation())
sketch13.addGeometry(Part.LineSegment(Vector(64, -133, 0), Vector(247, -133, 0)), False)
sketch13.addGeometry(Part.LineSegment(Vector(247, -133, 0), Vector(247, 138, 0)), False)
sketch13.addGeometry(Part.LineSegment(Vector(247, 138, 0), Vector(64, 138, 0)), False)
sketch13.addGeometry(Part.LineSegment(Vector(64, 138, 0), Vector(64, -133, 0)), False)
sketch13.addConstraint(Sketcher.Constraint("Coincident", 0, 2, 1, 1))
sketch13.addConstraint(Sketcher.Constraint("Coincident", 1, 2, 2, 1))
sketch13.addConstraint(Sketcher.Constraint("Coincident", 2, 2, 3, 1))
sketch13.addConstraint(Sketcher.Constraint("Coincident", 3, 2, 0, 1))
sketch13.addConstraint(Sketcher.Constraint("Horizontal", 0))
sketch13.addConstraint(Sketcher.Constraint("Vertical", 1))
sketch13.addConstraint(Sketcher.Constraint("Horizontal", 2))
sketch13.addConstraint(Sketcher.Constraint("Vertical", 3))
sketch13.addConstraint(Sketcher.Constraint("DistanceX", -1, 1, 2, 2, Q("2.5 in")))
sketch13.addConstraint(Sketcher.Constraint("DistanceX", 0, 1, 0, 2, Q("183.48393 mm")))
sketch13.addConstraint(Sketcher.Constraint("DistanceY", 1, 1, 1, 2, Q("271.102861 mm")))
sketch13.addConstraint(Sketcher.Constraint("DistanceY", 0, 2, -1, 1, Q("133.062869 mm")))
pocket3 = body.newObject("PartDesign::Pocket", "Pocket002")
pocket3.Profile = sketch13
pocket3.setExpression("Length", "Params.pocket3_length")
pocket3.Midplane = True

doc.recompute()
